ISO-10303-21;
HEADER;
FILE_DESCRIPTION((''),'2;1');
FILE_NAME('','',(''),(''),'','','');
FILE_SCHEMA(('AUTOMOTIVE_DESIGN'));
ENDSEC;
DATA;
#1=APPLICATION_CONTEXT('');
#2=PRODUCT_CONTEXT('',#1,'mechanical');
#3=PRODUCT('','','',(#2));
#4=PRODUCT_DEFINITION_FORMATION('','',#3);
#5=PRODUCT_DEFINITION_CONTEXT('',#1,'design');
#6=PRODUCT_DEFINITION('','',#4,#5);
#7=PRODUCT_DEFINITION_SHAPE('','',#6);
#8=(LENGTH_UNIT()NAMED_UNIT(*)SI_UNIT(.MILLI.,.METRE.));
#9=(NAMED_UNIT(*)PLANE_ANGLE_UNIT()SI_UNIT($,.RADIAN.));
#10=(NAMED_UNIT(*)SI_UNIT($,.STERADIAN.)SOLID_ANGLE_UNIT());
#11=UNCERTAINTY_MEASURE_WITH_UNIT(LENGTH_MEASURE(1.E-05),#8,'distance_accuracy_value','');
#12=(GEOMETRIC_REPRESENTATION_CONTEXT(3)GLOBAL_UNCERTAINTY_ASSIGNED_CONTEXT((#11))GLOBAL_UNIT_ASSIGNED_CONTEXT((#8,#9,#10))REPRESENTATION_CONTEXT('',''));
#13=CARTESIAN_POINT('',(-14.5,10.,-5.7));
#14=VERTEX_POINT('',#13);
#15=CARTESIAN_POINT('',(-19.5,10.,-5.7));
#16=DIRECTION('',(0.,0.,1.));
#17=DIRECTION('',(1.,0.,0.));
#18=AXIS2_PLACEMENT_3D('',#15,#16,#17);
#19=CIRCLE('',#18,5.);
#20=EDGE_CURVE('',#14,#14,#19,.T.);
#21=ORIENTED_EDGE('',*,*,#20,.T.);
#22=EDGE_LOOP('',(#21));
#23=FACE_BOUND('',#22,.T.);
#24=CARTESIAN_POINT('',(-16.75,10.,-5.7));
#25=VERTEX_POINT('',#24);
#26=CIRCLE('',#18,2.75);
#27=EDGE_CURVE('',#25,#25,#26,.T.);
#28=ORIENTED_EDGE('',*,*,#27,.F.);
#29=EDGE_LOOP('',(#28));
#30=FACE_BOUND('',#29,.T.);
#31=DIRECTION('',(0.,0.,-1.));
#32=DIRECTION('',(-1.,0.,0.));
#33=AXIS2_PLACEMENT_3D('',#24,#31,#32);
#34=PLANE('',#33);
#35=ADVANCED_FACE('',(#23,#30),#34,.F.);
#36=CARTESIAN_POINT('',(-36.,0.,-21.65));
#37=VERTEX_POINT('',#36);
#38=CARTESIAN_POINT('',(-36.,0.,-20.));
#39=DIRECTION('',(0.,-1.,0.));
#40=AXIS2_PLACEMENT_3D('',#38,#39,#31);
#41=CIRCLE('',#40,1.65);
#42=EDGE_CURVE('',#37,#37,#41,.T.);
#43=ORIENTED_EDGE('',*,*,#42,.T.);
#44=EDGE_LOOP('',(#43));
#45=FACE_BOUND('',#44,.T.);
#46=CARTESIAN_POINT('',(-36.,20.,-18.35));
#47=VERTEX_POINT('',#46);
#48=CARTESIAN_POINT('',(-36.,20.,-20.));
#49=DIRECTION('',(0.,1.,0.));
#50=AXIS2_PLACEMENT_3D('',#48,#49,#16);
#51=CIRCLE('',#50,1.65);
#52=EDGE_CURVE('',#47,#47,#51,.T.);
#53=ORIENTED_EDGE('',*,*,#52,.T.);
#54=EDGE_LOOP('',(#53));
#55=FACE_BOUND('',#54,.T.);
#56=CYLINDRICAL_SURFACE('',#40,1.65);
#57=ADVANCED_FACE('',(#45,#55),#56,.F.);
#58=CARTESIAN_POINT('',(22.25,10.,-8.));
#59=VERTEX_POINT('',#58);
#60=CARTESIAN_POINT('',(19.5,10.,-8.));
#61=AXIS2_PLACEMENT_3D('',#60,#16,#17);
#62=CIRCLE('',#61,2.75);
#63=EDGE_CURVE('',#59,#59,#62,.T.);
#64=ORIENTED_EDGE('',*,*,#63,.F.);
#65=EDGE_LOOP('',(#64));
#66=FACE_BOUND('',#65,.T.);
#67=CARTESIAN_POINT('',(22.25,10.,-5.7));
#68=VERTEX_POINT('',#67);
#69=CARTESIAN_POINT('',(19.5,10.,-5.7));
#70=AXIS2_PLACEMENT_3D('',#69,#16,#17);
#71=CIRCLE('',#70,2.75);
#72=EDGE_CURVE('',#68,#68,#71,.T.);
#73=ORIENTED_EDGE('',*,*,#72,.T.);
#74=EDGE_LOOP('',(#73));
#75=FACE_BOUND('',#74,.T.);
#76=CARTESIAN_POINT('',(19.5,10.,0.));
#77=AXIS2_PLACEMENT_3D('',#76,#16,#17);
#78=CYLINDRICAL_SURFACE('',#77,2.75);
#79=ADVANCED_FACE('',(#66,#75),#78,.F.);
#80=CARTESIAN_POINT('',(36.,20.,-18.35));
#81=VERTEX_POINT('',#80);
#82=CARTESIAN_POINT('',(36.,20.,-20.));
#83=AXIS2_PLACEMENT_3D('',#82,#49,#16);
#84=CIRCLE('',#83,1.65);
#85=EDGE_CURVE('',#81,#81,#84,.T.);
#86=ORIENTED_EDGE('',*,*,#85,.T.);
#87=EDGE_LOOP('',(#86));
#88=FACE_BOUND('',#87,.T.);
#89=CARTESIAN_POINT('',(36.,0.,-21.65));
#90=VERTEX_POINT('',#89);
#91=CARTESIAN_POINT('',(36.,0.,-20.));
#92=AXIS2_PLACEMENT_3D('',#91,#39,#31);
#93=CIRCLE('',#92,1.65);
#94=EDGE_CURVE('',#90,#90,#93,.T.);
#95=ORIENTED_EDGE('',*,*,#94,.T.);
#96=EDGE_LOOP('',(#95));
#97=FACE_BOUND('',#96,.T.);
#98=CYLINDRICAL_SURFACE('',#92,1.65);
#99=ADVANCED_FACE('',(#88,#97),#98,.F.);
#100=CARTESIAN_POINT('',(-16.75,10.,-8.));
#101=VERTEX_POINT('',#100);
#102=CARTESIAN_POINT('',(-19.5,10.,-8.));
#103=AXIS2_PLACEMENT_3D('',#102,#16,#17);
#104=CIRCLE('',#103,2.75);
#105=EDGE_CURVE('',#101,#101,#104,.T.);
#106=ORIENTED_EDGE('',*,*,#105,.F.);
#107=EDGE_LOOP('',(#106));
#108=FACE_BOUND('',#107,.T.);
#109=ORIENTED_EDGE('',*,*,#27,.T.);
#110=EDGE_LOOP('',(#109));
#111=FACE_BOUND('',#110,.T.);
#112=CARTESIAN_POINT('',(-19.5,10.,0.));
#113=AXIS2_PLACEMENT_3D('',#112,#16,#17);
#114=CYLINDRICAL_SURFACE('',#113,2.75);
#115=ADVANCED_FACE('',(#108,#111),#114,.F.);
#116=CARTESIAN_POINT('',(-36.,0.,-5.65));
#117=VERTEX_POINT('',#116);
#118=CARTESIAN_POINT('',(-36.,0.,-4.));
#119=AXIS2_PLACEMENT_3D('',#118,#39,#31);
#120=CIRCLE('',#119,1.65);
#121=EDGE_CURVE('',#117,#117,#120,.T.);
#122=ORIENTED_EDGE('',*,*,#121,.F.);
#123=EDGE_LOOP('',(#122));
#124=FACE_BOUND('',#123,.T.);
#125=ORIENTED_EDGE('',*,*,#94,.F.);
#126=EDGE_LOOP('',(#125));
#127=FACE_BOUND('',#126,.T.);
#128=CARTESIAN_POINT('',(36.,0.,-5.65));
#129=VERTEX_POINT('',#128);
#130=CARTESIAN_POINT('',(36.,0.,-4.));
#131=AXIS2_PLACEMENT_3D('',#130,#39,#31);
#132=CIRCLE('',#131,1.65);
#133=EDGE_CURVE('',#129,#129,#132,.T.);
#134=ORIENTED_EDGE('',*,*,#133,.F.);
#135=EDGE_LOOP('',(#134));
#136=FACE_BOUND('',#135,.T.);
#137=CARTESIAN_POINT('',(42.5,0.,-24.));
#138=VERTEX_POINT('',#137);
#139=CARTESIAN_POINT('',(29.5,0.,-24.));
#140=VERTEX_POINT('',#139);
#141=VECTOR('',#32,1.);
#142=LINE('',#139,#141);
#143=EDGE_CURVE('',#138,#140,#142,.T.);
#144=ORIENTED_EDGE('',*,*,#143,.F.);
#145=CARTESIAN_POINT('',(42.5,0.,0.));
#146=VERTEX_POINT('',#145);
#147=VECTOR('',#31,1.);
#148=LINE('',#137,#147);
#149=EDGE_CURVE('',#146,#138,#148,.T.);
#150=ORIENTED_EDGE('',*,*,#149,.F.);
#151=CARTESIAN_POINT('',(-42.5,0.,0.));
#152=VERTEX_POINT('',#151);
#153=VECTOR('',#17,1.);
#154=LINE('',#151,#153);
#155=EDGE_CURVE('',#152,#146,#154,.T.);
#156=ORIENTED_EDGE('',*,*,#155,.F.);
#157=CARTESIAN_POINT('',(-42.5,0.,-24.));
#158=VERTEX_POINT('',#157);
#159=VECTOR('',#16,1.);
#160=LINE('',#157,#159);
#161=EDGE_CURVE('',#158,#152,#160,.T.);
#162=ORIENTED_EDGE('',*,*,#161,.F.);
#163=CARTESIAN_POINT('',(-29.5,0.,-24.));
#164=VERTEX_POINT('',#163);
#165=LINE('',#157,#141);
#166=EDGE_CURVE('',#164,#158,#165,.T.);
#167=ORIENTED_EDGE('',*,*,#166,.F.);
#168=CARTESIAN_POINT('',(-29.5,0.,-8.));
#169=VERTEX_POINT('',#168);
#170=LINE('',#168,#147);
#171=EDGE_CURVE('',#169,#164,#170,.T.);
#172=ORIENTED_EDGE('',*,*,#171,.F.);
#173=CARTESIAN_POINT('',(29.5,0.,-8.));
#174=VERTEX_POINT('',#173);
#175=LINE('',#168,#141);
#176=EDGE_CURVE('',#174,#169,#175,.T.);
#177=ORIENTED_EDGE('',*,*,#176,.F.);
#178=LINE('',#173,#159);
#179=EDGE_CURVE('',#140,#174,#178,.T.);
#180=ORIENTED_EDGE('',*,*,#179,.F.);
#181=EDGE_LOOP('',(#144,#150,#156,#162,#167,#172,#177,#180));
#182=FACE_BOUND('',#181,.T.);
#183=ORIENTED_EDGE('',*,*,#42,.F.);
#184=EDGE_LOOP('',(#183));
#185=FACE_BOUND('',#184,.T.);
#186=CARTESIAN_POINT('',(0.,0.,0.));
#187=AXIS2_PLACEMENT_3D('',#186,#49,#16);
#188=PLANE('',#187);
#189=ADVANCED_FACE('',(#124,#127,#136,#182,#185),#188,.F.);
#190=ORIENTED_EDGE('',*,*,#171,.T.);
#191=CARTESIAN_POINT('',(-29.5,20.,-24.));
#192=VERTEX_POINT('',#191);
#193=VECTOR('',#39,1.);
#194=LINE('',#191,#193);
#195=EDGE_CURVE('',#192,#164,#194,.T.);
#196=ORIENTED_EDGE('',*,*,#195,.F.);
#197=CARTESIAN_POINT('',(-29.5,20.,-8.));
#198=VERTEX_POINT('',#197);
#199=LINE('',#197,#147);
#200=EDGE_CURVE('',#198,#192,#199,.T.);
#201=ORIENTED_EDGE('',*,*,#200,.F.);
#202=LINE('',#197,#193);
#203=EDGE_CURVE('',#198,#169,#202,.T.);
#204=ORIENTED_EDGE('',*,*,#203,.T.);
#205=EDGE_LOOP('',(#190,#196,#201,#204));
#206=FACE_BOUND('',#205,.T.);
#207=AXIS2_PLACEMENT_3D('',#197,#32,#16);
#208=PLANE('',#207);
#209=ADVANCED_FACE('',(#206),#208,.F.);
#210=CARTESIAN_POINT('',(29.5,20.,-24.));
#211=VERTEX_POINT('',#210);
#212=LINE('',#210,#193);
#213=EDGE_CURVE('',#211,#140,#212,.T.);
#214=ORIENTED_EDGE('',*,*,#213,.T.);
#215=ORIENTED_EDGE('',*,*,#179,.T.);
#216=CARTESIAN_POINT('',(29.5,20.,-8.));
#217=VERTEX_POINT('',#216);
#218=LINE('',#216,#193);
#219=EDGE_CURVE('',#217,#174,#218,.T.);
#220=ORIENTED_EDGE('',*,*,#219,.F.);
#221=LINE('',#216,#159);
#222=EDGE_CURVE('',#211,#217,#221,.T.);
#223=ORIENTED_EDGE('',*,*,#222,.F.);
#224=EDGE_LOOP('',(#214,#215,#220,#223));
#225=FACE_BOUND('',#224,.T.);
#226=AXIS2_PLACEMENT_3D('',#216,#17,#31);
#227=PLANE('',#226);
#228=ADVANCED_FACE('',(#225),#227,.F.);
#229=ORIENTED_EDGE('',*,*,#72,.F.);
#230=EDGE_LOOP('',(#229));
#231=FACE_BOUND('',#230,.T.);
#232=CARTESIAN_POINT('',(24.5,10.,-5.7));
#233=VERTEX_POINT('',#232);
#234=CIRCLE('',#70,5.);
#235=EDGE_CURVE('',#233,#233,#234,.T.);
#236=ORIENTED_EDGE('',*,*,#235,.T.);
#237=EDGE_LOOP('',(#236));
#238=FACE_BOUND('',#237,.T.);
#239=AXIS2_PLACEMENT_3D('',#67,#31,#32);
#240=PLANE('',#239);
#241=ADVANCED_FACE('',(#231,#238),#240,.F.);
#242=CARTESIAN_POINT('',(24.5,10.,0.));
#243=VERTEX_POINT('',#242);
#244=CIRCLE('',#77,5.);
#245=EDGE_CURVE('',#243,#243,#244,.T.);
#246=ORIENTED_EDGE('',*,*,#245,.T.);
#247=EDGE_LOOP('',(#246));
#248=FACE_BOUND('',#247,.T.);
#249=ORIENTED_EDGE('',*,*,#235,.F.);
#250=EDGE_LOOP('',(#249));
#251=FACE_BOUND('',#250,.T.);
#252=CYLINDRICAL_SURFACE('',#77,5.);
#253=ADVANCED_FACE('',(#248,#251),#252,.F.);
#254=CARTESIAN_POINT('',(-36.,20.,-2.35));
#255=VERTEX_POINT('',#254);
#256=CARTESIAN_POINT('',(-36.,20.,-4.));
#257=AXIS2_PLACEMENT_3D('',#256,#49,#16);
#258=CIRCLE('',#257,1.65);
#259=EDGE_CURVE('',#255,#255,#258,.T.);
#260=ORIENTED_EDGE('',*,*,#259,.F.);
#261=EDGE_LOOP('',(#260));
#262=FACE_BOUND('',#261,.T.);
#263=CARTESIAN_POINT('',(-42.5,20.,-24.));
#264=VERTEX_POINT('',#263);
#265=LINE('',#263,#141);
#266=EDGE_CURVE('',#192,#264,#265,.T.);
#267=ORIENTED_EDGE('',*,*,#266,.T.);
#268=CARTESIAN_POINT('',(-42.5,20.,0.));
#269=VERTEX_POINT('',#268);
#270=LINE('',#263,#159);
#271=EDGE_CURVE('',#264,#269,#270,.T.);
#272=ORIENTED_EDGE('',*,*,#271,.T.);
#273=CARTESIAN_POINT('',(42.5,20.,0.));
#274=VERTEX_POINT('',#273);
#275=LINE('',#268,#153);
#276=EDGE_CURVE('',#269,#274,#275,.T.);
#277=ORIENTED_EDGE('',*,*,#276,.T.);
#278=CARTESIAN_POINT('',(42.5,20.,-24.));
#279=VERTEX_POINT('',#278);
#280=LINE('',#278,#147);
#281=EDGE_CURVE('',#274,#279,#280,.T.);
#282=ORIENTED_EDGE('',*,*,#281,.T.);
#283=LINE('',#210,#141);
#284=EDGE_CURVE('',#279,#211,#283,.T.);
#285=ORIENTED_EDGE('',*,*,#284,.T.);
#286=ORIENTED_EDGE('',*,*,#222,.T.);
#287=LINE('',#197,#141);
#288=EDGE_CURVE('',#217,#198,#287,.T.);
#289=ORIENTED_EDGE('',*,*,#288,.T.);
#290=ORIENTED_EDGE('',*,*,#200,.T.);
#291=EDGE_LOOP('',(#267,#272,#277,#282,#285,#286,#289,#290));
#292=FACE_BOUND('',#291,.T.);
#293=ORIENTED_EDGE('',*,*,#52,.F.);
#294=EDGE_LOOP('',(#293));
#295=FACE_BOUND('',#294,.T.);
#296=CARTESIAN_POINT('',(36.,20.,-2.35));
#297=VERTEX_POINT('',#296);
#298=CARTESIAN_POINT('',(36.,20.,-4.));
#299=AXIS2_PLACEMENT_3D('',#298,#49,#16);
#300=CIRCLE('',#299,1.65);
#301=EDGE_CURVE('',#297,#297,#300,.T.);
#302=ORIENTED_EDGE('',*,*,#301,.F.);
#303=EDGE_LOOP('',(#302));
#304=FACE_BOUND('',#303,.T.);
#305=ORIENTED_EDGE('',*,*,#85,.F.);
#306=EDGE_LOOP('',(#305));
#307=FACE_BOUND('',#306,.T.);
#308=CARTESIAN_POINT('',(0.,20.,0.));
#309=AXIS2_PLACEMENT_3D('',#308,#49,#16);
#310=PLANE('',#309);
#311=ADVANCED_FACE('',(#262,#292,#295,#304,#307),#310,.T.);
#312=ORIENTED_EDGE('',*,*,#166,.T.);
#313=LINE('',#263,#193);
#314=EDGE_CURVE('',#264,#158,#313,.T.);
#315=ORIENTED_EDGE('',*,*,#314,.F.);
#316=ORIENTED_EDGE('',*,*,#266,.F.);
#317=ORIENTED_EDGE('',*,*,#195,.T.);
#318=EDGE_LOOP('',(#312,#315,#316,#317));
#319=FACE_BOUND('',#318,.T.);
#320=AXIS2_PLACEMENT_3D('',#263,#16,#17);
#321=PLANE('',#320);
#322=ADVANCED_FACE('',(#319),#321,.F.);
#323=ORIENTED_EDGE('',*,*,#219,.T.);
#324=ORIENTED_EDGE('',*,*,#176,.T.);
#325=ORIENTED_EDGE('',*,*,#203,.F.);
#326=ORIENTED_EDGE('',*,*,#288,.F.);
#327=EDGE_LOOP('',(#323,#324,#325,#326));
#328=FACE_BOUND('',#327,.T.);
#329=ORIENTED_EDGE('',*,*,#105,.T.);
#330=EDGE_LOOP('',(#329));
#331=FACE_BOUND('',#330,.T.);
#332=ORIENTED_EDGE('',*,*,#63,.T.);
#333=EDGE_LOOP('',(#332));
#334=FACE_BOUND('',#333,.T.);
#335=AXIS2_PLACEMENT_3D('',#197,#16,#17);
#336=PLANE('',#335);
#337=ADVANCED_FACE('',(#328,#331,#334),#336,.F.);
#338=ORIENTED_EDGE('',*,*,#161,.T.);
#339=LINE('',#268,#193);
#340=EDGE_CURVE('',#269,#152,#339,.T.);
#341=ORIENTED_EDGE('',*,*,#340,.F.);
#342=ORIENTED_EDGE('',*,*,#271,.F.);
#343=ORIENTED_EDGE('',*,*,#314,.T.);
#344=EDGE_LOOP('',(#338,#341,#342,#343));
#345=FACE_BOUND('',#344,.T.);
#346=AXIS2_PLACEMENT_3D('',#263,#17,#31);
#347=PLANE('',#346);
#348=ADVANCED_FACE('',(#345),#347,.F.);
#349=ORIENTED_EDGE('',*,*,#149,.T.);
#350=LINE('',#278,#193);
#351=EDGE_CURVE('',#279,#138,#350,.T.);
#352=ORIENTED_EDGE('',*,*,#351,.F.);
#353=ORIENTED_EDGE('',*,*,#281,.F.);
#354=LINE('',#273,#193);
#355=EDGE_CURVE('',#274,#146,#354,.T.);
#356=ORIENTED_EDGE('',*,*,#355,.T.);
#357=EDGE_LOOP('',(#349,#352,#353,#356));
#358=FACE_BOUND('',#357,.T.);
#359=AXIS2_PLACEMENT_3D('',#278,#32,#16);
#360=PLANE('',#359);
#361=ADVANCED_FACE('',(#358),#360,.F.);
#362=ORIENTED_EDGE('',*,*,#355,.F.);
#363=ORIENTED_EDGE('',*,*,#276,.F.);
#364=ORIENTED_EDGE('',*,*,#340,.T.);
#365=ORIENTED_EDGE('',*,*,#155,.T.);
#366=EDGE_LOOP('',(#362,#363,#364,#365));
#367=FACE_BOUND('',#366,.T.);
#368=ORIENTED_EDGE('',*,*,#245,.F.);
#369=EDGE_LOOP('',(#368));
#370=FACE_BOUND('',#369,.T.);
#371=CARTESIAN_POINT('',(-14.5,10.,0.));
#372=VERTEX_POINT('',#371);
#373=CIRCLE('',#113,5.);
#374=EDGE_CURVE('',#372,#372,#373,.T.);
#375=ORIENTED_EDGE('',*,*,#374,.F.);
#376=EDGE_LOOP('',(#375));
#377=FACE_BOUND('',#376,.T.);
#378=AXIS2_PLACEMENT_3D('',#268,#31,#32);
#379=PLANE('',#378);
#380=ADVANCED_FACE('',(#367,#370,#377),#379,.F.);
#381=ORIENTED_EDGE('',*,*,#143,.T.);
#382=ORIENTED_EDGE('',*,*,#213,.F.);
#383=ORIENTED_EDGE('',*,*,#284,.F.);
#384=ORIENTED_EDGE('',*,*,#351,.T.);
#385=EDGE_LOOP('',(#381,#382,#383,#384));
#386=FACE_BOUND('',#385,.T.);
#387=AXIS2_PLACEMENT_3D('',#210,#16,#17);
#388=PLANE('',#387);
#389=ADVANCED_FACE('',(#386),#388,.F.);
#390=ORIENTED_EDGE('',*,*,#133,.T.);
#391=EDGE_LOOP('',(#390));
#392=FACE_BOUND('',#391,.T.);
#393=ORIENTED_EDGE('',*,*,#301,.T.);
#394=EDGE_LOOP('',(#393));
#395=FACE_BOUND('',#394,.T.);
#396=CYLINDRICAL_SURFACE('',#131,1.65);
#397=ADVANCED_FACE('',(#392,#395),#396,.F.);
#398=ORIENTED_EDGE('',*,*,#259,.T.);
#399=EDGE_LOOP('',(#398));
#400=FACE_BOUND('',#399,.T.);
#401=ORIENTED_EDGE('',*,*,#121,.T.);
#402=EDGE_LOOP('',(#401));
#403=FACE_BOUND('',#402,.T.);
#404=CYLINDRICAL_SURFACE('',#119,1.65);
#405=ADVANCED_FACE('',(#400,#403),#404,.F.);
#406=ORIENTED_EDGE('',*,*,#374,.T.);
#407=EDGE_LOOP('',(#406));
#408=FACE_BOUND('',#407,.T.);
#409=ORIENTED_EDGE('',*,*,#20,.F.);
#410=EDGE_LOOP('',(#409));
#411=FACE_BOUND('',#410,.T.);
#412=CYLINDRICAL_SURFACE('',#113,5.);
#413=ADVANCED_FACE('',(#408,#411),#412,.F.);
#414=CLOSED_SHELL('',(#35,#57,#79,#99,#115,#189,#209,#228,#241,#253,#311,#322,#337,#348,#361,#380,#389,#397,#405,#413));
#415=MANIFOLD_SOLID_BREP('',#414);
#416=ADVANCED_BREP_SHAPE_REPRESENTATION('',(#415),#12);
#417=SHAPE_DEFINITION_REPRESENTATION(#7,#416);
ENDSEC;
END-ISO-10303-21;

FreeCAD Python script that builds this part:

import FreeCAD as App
import Part
import Sketcher

doc = App.newDocument("Part")
body = doc.addObject("PartDesign::Body", "Body")

# Sketch on XZ plane
sketch1 = body.newObject("Sketcher::SketchObject", "Sketch")
sketch1.AttachmentSupport = (doc.getObject("XZ_Plane"), [""])
sketch1.MapMode = "FlatFace"
sketch1.addGeometry(Part.LineSegment(App.Vector(-29.5, -24, 0), App.Vector(-42.5, -24, 0)), False)
sketch1.addGeometry(Part.LineSegment(App.Vector(-42.5, -24, 0), App.Vector(-42.5, 0, 0)), False)
sketch1.addGeometry(Part.LineSegment(App.Vector(-42.5, 0, 0), App.Vector(42.5, 0, 0)), False)
sketch1.addGeometry(Part.LineSegment(App.Vector(42.5, 0, 0), App.Vector(42.5, -24, 0)), False)
sketch1.addGeometry(Part.LineSegment(App.Vector(42.5, -24, 0), App.Vector(29.5, -24, 0)), False)
sketch1.addGeometry(Part.LineSegment(App.Vector(29.5, -24, 0), App.Vector(29.5, -8, 0)), False)
sketch1.addGeometry(Part.LineSegment(App.Vector(29.5, -8, 0), App.Vector(-29.5, -8, 0)), False)
sketch1.addGeometry(Part.LineSegment(App.Vector(-29.5, -8, 0), App.Vector(-29.5, -24, 0)), False)
sketch1.addConstraint(Sketcher.Constraint("Coincident", 0, 2, 1, 1))
sketch1.addConstraint(Sketcher.Constraint("Coincident", 1, 2, 2, 1))
sketch1.addConstraint(Sketcher.Constraint("Coincident", 2, 2, 3, 1))
sketch1.addConstraint(Sketcher.Constraint("Coincident", 3, 2, 4, 1))
sketch1.addConstraint(Sketcher.Constraint("Coincident", 4, 2, 5, 1))
sketch1.addConstraint(Sketcher.Constraint("Coincident", 5, 2, 6, 1))
sketch1.addConstraint(Sketcher.Constraint("Coincident", 6, 2, 7, 1))
sketch1.addConstraint(Sketcher.Constraint("Coincident", 7, 2, 0, 1))
sketch1.addConstraint(Sketcher.Constraint("Horizontal", 0))
sketch1.addConstraint(Sketcher.Constraint("Vertical", 1))
sketch1.addConstraint(Sketcher.Constraint("Horizontal", 2))
sketch1.addConstraint(Sketcher.Constraint("Vertical", 3))
sketch1.addConstraint(Sketcher.Constraint("Horizontal", 4))
sketch1.addConstraint(Sketcher.Constraint("Vertical", 5))
sketch1.addConstraint(Sketcher.Constraint("Horizontal", 6))
sketch1.addConstraint(Sketcher.Constraint("Vertical", 7))
sketch1.addConstraint(Sketcher.Constraint("Symmetric", 1, 2, 2, 2, -1, 1))
sketch1.addConstraint(Sketcher.Constraint("Symmetric", 4, 2, 7, 2, -2))
sketch1.addConstraint(Sketcher.Constraint("DistanceX", 0, 2, 0, 1, 13.0))
sketch1.addConstraint(Sketcher.Constraint("DistanceX", 2, 1, 2, 2, 85.0))
sketch1.addConstraint(Sketcher.Constraint("DistanceY", 1, 1, 1, 2, 24.0))
sketch1.addConstraint(Sketcher.Constraint("DistanceY", 5, 1, 5, 2, 16.0))
pad1 = body.newObject("PartDesign::Pad", "Pad")
pad1.Profile = sketch1
pad1.Length = 20
pad1.Reversed = True

# Sketch on XY plane
sketch2 = body.newObject("Sketcher::SketchObject", "Sketch001")
sketch2.AttachmentSupport = (doc.getObject("XY_Plane"), [""])
sketch2.MapMode = "FlatFace"
sketch2.addGeometry(Part.Circle(App.Vector(19.5, 10, 0), App.Vector(0, 0, 1), 2.75), False)
sketch2.addGeometry(Part.Circle(App.Vector(-19.5, 10, 0), App.Vector(0, 0, 1), 2.75), False)
sketch2.addConstraint(Sketcher.Constraint("Equal", 0, 1))
sketch2.addConstraint(Sketcher.Constraint("Symmetric", 0, 3, 1, 3, -2))
sketch2.addConstraint(Sketcher.Constraint("Diameter", 0, 5.5))
sketch2.addConstraint(Sketcher.Constraint("DistanceY", -1, 1, 0, 3, 10.0))
sketch2.addConstraint(Sketcher.Constraint("DistanceX", 1, 3, 0, 3, 39.0))
doc.recompute()
hole = body.newObject("PartDesign::Hole", "Hole")
hole.Profile = sketch2
hole.ThreadType = "None"
hole.Diameter = 5.5
hole.DepthType = "ThroughAll"
hole.HoleCutType = "Counterbore"
hole.HoleCutDiameter = 10
hole.HoleCutDepth = 5.7

# Sketch on XZ plane
sketch3 = body.newObject("Sketcher::SketchObject", "Sketch002")
sketch3.AttachmentSupport = (doc.getObject("XZ_Plane"), [""])
sketch3.MapMode = "FlatFace"
sketch3.addGeometry(Part.Circle(App.Vector(-36, -4, 0), App.Vector(0, 0, 1), 1.65), False)
sketch3.addGeometry(Part.Circle(App.Vector(36, -4, 0), App.Vector(0, 0, 1), 1.65), False)
sketch3.addGeometry(Part.Circle(App.Vector(-36, -20, 0), App.Vector(0, 0, 1), 1.65), False)
sketch3.addGeometry(Part.Circle(App.Vector(36, -20, 0), App.Vector(0, 0, 1), 1.65), False)
sketch3.addConstraint(Sketcher.Constraint("Equal", 0, 1))
sketch3.addConstraint(Sketcher.Constraint("Equal", 1, 2))
sketch3.addConstraint(Sketcher.Constraint("Equal", 2, 3))
sketch3.addConstraint(Sketcher.Constraint("Symmetric", 0, 3, 1, 3, -2))
sketch3.addConstraint(Sketcher.Constraint("Symmetric", 2, 3, 3, 3, -2))
sketch3.addConstraint(Sketcher.Constraint("Vertical", 0, 3, 2, 3))
sketch3.addConstraint(Sketcher.Constraint("Diameter", 0, 3.3))
sketch3.addConstraint(Sketcher.Constraint("DistanceX", 0, 3, -1, 1, 36.0))
sketch3.addConstraint(Sketcher.Constraint("DistanceY", 0, 3, -1, 1, 4.0))
sketch3.addConstraint(Sketcher.Constraint("DistanceY", 2, 3, -1, 1, 20.0))
doc.recompute()
hole2 = body.newObject("PartDesign::Hole", "Hole001")
hole2.Profile = sketch3
hole2.ThreadType = "None"
hole2.Diameter = 3.3
hole2.DepthType = "ThroughAll"

doc.recompute()
